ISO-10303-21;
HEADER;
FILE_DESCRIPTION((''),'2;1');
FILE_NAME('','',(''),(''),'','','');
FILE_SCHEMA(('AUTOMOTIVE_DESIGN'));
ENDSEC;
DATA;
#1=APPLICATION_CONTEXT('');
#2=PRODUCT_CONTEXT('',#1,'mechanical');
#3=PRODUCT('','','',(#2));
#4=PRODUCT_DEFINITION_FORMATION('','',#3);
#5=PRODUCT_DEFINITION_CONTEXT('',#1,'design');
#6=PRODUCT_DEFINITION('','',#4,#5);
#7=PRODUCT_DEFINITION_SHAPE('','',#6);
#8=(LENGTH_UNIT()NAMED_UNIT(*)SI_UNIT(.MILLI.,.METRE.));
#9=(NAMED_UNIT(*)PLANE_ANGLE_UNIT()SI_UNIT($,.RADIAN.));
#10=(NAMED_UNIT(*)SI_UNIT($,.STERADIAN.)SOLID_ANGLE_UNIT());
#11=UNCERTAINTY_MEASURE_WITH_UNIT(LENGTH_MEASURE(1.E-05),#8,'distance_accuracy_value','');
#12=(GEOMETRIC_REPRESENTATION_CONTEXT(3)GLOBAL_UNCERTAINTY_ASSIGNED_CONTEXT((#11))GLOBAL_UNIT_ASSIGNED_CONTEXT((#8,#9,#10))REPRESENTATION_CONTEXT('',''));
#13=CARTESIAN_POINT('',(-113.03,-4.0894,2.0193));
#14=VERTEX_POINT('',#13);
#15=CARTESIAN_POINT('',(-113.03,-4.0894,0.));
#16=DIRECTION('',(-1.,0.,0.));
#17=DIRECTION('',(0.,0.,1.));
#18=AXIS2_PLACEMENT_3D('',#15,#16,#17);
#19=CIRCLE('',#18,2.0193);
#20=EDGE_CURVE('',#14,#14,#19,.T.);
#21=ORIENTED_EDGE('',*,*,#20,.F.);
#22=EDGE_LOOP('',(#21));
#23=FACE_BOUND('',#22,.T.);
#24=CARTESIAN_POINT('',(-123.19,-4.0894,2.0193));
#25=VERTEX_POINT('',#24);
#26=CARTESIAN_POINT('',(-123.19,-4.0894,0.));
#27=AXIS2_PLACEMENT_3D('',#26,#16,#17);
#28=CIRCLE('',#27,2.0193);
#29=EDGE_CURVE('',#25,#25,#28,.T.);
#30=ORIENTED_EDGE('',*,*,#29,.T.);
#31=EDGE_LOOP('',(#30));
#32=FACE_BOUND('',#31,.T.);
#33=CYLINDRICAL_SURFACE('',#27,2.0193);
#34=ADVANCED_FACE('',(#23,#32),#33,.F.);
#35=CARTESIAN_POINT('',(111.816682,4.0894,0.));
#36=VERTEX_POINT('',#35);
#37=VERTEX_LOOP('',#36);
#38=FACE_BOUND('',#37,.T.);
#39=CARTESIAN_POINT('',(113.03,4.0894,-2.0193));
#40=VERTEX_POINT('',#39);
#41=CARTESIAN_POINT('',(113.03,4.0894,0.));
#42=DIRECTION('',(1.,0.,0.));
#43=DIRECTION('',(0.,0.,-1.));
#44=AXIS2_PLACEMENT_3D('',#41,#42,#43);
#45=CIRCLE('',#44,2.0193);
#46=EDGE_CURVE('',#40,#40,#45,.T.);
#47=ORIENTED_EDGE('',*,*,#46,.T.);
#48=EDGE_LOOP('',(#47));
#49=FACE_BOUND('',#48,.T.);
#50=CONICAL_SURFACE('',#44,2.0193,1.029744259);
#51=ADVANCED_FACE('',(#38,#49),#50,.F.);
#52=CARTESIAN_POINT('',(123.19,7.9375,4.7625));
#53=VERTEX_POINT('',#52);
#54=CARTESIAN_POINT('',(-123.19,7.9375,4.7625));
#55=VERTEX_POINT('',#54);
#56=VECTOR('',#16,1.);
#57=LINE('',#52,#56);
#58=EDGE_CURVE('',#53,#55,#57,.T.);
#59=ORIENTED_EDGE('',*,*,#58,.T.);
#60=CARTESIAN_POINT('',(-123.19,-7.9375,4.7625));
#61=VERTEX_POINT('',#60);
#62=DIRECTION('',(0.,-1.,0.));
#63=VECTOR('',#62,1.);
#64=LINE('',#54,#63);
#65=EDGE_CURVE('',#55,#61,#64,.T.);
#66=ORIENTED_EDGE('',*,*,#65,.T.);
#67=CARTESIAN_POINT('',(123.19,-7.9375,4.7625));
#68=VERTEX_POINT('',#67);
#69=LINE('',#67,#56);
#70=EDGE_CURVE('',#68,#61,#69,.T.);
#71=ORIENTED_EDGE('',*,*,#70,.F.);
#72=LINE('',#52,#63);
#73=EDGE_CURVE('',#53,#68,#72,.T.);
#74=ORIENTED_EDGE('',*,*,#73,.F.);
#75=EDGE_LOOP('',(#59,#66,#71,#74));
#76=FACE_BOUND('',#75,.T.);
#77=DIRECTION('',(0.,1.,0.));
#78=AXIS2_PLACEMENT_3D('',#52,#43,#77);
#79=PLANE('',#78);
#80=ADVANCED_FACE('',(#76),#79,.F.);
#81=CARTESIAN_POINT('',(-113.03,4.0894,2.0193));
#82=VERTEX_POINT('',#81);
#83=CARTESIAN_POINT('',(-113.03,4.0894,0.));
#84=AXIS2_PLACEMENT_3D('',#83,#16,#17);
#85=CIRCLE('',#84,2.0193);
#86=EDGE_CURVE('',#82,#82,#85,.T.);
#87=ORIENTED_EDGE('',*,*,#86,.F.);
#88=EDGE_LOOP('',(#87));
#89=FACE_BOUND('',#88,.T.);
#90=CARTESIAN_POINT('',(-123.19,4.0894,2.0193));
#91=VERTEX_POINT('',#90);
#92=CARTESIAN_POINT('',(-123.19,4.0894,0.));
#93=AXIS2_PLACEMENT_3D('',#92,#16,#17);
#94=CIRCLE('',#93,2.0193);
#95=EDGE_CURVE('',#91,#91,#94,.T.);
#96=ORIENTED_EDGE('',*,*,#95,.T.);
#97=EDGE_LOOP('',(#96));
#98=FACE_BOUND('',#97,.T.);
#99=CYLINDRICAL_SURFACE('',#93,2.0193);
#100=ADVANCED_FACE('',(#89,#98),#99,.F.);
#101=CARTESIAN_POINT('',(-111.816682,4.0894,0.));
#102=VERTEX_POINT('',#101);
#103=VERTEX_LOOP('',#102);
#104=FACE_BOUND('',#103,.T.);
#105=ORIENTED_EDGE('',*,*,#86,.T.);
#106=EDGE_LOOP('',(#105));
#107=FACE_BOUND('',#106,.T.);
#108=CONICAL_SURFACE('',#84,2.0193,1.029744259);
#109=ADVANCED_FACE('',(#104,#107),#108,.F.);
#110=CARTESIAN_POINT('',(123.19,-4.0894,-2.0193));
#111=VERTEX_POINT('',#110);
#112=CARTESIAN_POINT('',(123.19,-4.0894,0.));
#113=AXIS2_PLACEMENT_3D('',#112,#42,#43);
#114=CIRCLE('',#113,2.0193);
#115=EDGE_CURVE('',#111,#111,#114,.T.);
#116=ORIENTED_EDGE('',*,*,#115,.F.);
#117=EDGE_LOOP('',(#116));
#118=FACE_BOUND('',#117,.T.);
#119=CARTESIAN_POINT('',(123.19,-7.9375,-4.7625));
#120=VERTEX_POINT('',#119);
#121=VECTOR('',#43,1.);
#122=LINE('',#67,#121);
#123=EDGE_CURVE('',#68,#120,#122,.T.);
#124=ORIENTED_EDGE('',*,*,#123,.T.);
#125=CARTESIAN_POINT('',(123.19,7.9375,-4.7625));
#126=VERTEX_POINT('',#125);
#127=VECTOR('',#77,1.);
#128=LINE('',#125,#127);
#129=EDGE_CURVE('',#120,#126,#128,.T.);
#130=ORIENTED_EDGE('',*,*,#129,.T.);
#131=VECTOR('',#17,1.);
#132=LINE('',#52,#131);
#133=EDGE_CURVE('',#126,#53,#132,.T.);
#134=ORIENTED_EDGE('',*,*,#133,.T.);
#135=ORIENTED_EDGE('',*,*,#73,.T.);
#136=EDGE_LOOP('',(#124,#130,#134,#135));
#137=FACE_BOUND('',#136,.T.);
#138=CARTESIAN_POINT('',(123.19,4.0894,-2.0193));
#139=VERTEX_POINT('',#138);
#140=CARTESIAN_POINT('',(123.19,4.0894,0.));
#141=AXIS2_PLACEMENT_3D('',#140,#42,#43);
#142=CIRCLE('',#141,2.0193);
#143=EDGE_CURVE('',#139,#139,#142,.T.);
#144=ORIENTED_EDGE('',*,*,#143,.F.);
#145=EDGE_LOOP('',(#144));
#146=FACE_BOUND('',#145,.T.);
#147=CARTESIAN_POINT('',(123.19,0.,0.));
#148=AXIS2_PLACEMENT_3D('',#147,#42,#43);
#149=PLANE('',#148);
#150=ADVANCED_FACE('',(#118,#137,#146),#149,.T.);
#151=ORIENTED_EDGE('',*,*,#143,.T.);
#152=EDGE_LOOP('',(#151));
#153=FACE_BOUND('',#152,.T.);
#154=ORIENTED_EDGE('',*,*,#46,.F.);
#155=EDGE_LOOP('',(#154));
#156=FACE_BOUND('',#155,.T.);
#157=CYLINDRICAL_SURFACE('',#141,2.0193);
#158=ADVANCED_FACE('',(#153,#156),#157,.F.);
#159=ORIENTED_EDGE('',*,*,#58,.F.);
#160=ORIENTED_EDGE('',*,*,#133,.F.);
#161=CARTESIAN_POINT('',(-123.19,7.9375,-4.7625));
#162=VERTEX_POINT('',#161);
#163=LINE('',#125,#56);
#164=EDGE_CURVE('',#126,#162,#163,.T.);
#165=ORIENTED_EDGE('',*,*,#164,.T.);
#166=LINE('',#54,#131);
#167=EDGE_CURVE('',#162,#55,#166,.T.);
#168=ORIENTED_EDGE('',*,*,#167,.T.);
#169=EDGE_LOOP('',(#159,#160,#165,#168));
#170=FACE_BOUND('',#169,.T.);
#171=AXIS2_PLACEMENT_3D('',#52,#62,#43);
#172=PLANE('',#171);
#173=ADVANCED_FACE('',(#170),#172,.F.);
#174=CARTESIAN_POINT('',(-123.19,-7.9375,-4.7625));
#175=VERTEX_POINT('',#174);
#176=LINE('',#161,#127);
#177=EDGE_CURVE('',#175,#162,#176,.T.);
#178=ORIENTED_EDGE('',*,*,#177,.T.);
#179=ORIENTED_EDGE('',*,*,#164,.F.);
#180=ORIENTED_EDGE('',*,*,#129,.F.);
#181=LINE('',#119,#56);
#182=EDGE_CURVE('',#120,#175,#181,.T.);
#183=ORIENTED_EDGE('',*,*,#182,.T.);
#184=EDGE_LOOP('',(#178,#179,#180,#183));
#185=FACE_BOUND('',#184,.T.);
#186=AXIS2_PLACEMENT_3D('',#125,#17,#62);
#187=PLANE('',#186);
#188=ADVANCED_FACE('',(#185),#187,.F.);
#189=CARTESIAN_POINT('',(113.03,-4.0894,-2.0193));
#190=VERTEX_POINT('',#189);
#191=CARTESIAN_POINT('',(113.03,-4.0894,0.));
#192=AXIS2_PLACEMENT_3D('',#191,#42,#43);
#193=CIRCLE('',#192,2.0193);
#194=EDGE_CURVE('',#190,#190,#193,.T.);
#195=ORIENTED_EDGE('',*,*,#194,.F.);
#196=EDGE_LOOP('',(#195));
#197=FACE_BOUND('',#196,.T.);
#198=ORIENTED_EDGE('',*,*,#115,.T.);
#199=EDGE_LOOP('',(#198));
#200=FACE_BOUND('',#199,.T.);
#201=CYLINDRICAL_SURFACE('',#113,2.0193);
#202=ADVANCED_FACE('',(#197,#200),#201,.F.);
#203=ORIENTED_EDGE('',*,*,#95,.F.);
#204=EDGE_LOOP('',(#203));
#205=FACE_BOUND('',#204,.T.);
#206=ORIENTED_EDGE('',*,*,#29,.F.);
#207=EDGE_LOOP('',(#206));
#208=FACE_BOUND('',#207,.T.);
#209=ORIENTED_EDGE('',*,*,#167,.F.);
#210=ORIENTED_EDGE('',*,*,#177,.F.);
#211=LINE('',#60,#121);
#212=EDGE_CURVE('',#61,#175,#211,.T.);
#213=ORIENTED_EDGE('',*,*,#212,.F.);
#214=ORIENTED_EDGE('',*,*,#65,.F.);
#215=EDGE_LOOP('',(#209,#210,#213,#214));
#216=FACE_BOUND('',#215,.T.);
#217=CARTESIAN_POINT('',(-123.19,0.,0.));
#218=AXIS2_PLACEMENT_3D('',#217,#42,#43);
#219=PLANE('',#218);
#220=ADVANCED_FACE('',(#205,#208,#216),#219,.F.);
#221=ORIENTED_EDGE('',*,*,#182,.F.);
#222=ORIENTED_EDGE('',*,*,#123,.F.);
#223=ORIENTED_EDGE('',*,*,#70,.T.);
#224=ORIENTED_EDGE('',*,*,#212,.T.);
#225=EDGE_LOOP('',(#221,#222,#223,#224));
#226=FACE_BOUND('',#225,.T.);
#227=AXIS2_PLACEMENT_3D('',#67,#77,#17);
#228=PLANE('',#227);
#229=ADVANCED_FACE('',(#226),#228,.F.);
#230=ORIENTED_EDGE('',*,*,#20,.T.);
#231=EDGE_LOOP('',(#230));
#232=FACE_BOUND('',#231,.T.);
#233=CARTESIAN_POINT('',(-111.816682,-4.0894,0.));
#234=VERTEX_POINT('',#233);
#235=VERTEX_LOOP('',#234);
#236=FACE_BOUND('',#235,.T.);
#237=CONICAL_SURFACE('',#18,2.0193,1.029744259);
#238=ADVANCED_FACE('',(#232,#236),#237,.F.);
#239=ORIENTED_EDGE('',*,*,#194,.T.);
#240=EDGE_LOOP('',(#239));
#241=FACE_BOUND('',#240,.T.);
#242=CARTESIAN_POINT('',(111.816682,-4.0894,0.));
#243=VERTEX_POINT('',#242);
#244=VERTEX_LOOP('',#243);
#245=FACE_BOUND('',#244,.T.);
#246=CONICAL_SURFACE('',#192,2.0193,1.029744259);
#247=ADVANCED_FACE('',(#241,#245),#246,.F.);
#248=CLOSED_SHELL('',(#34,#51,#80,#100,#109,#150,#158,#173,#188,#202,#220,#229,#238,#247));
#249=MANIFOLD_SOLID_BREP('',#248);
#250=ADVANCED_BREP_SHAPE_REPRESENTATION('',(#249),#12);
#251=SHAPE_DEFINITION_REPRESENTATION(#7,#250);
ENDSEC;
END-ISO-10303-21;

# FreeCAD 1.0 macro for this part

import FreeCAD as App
import Part
import Sketcher
from FreeCAD import Vector
Q = App.Units.Quantity

doc = App.newDocument("Part")
body = doc.addObject("PartDesign::Body", "Body")

# Sketch on YZ plane
sketch1 = body.newObject("Sketcher::SketchObject", "Sketch")
sketch1.AttachmentSupport = (doc.getObject("YZ_Plane"), [""])
sketch1.MapMode = "FlatFace"
sketch1.addGeometry(Part.LineSegment(Vector(7.9375, 4.7625, 0), Vector(-7.9375, 4.7625, 0)), False)
sketch1.addGeometry(Part.LineSegment(Vector(-7.9375, 4.7625, 0), Vector(-7.9375, -4.7625, 0)), False)
sketch1.addGeometry(Part.LineSegment(Vector(-7.9375, -4.7625, 0), Vector(7.9375, -4.7625, 0)), False)
sketch1.addGeometry(Part.LineSegment(Vector(7.9375, -4.7625, 0), Vector(7.9375, 4.7625, 0)), False)
sketch1.addConstraint(Sketcher.Constraint("Coincident", 0, 2, 1, 1))
sketch1.addConstraint(Sketcher.Constraint("Coincident", 1, 2, 2, 1))
sketch1.addConstraint(Sketcher.Constraint("Coincident", 2, 2, 3, 1))
sketch1.addConstraint(Sketcher.Constraint("Coincident", 3, 2, 0, 1))
sketch1.addConstraint(Sketcher.Constraint("Horizontal", 0))
sketch1.addConstraint(Sketcher.Constraint("Vertical", 1))
sketch1.addConstraint(Sketcher.Constraint("Horizontal", 2))
sketch1.addConstraint(Sketcher.Constraint("Vertical", 3))
sketch1.addConstraint(Sketcher.Constraint("Symmetric", 0, 2, 2, 2, -1, 1))
sketch1.addConstraint(Sketcher.Constraint("DistanceX", 0, 2, 0, 1, Q("0.625 in")))
sketch1.addConstraint(Sketcher.Constraint("DistanceY", 1, 2, 1, 1, Q("0.375 in")))
pad1 = body.newObject("PartDesign::Pad", "Pad")
pad1.Profile = sketch1
pad1.Length = Q("9.7 in")
pad1.Midplane = True

# Sketch on XZ plane
sketch2 = body.newObject("Sketcher::SketchObject", "Sketch001")
sketch2.AttachmentSupport = (doc.getObject("XZ_Plane"), [""])
sketch2.MapMode = "FlatFace"
sketch2.AttachmentOffset = App.Placement(Vector(0, 0, -0.161 * 25.4), App.Rotation())
sketch2.addGeometry(Part.LineSegment(Vector(111.816682, 0, 0), Vector(123.19, 0, 0)), False)
sketch2.addGeometry(Part.LineSegment(Vector(123.19, 0, 0), Vector(123.19, -2.0193, 0)), False)
sketch2.addGeometry(Part.LineSegment(Vector(123.19, -2.0193, 0), Vector(113.03, -2.0193, 0)), False)
sketch2.addGeometry(Part.LineSegment(Vector(113.03, -2.0193, 0), Vector(111.816682, 0, 0)), False)
sketch2.addConstraint(Sketcher.Constraint("Coincident", 0, 2, 1, 1))
sketch2.addConstraint(Sketcher.Constraint("Coincident", 1, 2, 2, 1))
sketch2.addConstraint(Sketcher.Constraint("Coincident", 2, 2, 3, 1))
sketch2.addConstraint(Sketcher.Constraint("Coincident", 3, 2, 0, 1))
sketch2.addConstraint(Sketcher.Constraint("Horizontal", 0))
sketch2.addConstraint(Sketcher.Constraint("Vertical", 1))
sketch2.addConstraint(Sketcher.Constraint("Horizontal", 2))
sketch2.addConstraint(Sketcher.Constraint("PointOnObject", 0, 2, -1))
sketch2.addConstraint(Sketcher.Constraint("DistanceX", 2, 2, 2, 1, Q("0.4 in")))
sketch2.addConstraint(Sketcher.Constraint("Angle", 3, Q("121 deg")))
sketch2.addConstraint(Sketcher.Constraint("DistanceX", -1, 1, 0, 2, Q("4.85 in")))
sketch2.addConstraint(Sketcher.Constraint("DistanceY", 1, 2, 1, 1, Q("0.0795 in")))
groove = body.newObject("PartDesign::Groove", "Groove")
groove.Profile = sketch2
groove.ReferenceAxis = (sketch2, ["H_Axis"])
groove.Angle = 360
doc.recompute()

linearpattern = body.newObject("PartDesign::LinearPattern", "LinearPattern")
linearpattern.Originals = [groove]
linearpattern.Direction = (doc.getObject("Y_Axis"), [""])
linearpattern.Mode = "offset"
linearpattern.Offset = Q("0.322 in")
linearpattern.Occurrences = 2
linearpattern.Reversed = True
body.Tip = linearpattern
doc.recompute()

mirrored = body.newObject("PartDesign::Mirrored", "Mirrored")
mirrored.Originals = [groove]
mirrored.MirrorPlane = (doc.getObject("YZ_Plane"), [""])
body.Tip = mirrored

# Sketch on XZ plane
sketch3 = body.newObject("Sketcher::SketchObject", "Sketch002")
sketch3.AttachmentSupport = (doc.getObject("XZ_Plane"), [""])
sketch3.MapMode = "FlatFace"
sketch3.AttachmentOffset = App.Placement(Vector(0, 0, 0.161 * 25.4), App.Rotation())
sketch3.addGeometry(Part.LineSegment(Vector(-123.19, 0, 0), Vector(-111.816682, 0, 0)), False)
sketch3.addGeometry(Part.LineSegment(Vector(-111.816682, 0, 0), Vector(-113.03, -2.0193, 0)), False)
sketch3.addGeometry(Part.LineSegment(Vector(-113.03, -2.0193, 0), Vector(-123.19, -2.0193, 0)), False)
sketch3.addGeometry(Part.LineSegment(Vector(-123.19, -2.0193, 0), Vector(-123.19, 0, 0)), False)
sketch3.addConstraint(Sketcher.Constraint("Coincident", 0, 2, 1, 1))
sketch3.addConstraint(Sketcher.Constraint("Coincident", 1, 2, 2, 1))
sketch3.addConstraint(Sketcher.Constraint("Coincident", 2, 2, 3, 1))
sketch3.addConstraint(Sketcher.Constraint("Coincident", 3, 2, 0, 1))
sketch3.addConstraint(Sketcher.Constraint("Horizontal", 0))
sketch3.addConstraint(Sketcher.Constraint("Horizontal", 2))
sketch3.addConstraint(Sketcher.Constraint("Vertical", 3))
sketch3.addConstraint(Sketcher.Constraint("PointOnObject", 0, 2, -1))
sketch3.addConstraint(Sketcher.Constraint("DistanceX", 2, 2, 2, 1, Q("0.4 in")))
sketch3.addConstraint(Sketcher.Constraint("Angle", 1, Q("-121 deg")))
sketch3.addConstraint(Sketcher.Constraint("DistanceX", 1, 2, -1, 1, Q("4.45 in")))
sketch3.addConstraint(Sketcher.Constraint("DistanceY", 3, 1, 3, 2, Q("0.0795 in")))
groove2 = body.newObject("PartDesign::Groove", "Groove001")
groove2.Profile = sketch3
groove2.ReferenceAxis = (sketch3, ["H_Axis"])
groove2.Angle = 360

doc.recompute()
